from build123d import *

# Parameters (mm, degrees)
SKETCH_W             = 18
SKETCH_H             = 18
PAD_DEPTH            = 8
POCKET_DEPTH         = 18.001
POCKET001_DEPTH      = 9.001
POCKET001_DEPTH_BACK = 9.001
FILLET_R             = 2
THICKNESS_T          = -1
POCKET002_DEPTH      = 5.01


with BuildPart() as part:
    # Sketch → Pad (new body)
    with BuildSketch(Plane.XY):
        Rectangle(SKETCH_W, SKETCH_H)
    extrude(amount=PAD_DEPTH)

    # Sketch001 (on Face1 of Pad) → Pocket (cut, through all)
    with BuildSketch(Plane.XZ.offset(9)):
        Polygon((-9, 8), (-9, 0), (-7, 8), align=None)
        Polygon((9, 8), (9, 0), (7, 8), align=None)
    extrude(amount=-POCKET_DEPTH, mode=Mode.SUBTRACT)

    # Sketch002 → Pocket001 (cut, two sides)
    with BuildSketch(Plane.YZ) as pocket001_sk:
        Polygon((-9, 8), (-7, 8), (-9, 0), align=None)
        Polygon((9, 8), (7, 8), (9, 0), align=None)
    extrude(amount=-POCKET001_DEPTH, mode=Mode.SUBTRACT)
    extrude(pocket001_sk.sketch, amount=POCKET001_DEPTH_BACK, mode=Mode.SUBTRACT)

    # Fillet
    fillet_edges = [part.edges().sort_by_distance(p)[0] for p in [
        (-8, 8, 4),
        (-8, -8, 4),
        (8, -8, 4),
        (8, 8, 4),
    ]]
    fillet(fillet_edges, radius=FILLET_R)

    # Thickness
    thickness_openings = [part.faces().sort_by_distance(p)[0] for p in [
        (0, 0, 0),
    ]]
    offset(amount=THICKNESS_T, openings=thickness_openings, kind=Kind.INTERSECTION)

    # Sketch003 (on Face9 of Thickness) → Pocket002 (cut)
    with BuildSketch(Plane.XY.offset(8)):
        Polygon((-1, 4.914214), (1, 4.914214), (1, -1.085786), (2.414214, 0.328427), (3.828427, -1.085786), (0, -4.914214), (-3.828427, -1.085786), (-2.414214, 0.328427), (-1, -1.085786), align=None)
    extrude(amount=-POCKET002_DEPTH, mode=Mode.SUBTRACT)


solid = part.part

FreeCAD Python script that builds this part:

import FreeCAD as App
import Part
import Sketcher
from FreeCAD import Vector
Q = App.Units.Quantity


def edges_at(feature, points):
    """Names of the edges that pass closest to the given points."""
    edges = feature.Shape.Edges
    near = lambda p: min(range(len(edges)), key=lambda i: edges[i].distToShape(Part.Vertex(*p))[0])
    return sorted({f"Edge{near(p) + 1}" for p in points})


def faces_at(feature, points):
    """Names of the faces that lie closest to the given points."""
    faces = feature.Shape.Faces
    near = lambda p: min(range(len(faces)), key=lambda i: faces[i].distToShape(Part.Vertex(*p))[0])
    return sorted({f"Face{near(p) + 1}" for p in points})

doc = App.newDocument("Part")
body = doc.addObject("PartDesign::Body", "Body")

# Sketch on XY plane
sketch1 = body.newObject("Sketcher::SketchObject", "Sketch")
sketch1.AttachmentSupport = (doc.getObject("XY_Plane"), [""])
sketch1.MapMode = "FlatFace"
sketch1.addGeometry(Part.LineSegment(Vector(-9, 9, 0), Vector(-9, -9, 0)), False)
sketch1.addGeometry(Part.LineSegment(Vector(-9, -9, 0), Vector(9, -9, 0)), False)
sketch1.addGeometry(Part.LineSegment(Vector(9, -9, 0), Vector(9, 9, 0)), False)
sketch1.addGeometry(Part.LineSegment(Vector(9, 9, 0), Vector(-9, 9, 0)), False)
sketch1.addConstraint(Sketcher.Constraint("Coincident", 0, 2, 1, 1))
sketch1.addConstraint(Sketcher.Constraint("Coincident", 1, 2, 2, 1))
sketch1.addConstraint(Sketcher.Constraint("Coincident", 2, 2, 3, 1))
sketch1.addConstraint(Sketcher.Constraint("Coincident", 3, 2, 0, 1))
sketch1.addConstraint(Sketcher.Constraint("Vertical", 0))
sketch1.addConstraint(Sketcher.Constraint("Horizontal", 1))
sketch1.addConstraint(Sketcher.Constraint("Vertical", 2))
sketch1.addConstraint(Sketcher.Constraint("Horizontal", 3))
sketch1.addConstraint(Sketcher.Constraint("Symmetric", 0, 2, 2, 2, -1, 1))
sketch1.addConstraint(Sketcher.Constraint("Equal", 3, 0))
sketch1.addConstraint(Sketcher.Constraint("DistanceX", 1, 1, 1, 2, Q("18 mm")))
pad1 = body.newObject("PartDesign::Pad", "Pad")
pad1.Profile = sketch1
pad1.Length = 8

# Sketch on XZ plane
sketch2 = body.newObject("Sketcher::SketchObject", "Sketch001")
sketch2.AttachmentSupport = (doc.getObject("XZ_Plane"), [""])
sketch2.MapMode = "FlatFace"
sketch2.AttachmentOffset = App.Placement(Vector(0, 0, 9), App.Rotation())
sketch2.addGeometry(Part.LineSegment(Vector(-9, 8, 0), Vector(-9, 0, 0)), False)
sketch2.addGeometry(Part.LineSegment(Vector(-9, 0, 0), Vector(-7, 8, 0)), False)
sketch2.addGeometry(Part.LineSegment(Vector(-7, 8, 0), Vector(-9, 8, 0)), False)
sketch2.addGeometry(Part.LineSegment(Vector(9, 0, 0), Vector(9, 8, 0)), False)
sketch2.addGeometry(Part.LineSegment(Vector(9, 8, 0), Vector(7, 8, 0)), False)
sketch2.addGeometry(Part.LineSegment(Vector(7, 8, 0), Vector(9, 0, 0)), False)
sketch2.addConstraint(Sketcher.Constraint("Coincident", 0, 2, 1, 1))
sketch2.addConstraint(Sketcher.Constraint("Coincident", 1, 2, 2, 1))
sketch2.addConstraint(Sketcher.Constraint("Coincident", 2, 2, 0, 1))
sketch2.addConstraint(Sketcher.Constraint("Coincident", 3, 2, 4, 1))
sketch2.addConstraint(Sketcher.Constraint("Coincident", 4, 2, 5, 1))
sketch2.addConstraint(Sketcher.Constraint("Coincident", 5, 2, 3, 1))
sketch2.addConstraint(Sketcher.Constraint("Vertical", 0))
sketch2.addConstraint(Sketcher.Constraint("Horizontal", 2))
sketch2.addConstraint(Sketcher.Constraint("Vertical", 3))
sketch2.addConstraint(Sketcher.Constraint("Horizontal", 4))
sketch2.addConstraint(Sketcher.Constraint("Symmetric", 0, 2, 5, 2, -1, 1))
sketch2.addConstraint(Sketcher.Constraint("Symmetric", 1, 2, 4, 2, -2))
sketch2.addConstraint(Sketcher.Constraint("PointOnObject", 0, 2, -1))
sketch2.addConstraint(Sketcher.Constraint("DistanceX", 2, 2, 2, 1, Q("2 mm")))
sketch2.addConstraint(Sketcher.Constraint("DistanceY", 0, 2, 0, 1, Q("8 mm")))
sketch2.addConstraint(Sketcher.Constraint("DistanceX", 0, 2, -1, 1, Q("9 mm")))
pocket1 = body.newObject("PartDesign::Pocket", "Pocket")
pocket1.Profile = sketch2
pocket1.Type = "ThroughAll"

# Sketch on YZ plane
sketch3 = body.newObject("Sketcher::SketchObject", "Sketch002")
sketch3.AttachmentSupport = (doc.getObject("YZ_Plane"), [""])
sketch3.MapMode = "FlatFace"
sketch3.addGeometry(Part.LineSegment(Vector(-7, 8, 0), Vector(-9, 8, 0)), False)
sketch3.addGeometry(Part.LineSegment(Vector(-9, 8, 0), Vector(-9, 0, 0)), False)
sketch3.addGeometry(Part.LineSegment(Vector(-9, 0, 0), Vector(-7, 8, 0)), False)
sketch3.addGeometry(Part.LineSegment(Vector(9, 8, 0), Vector(7, 8, 0)), False)
sketch3.addGeometry(Part.LineSegment(Vector(7, 8, 0), Vector(9, 0, 0)), False)
sketch3.addGeometry(Part.LineSegment(Vector(9, 0, 0), Vector(9, 8, 0)), False)
sketch3.addConstraint(Sketcher.Constraint("Coincident", 0, 2, 1, 1))
sketch3.addConstraint(Sketcher.Constraint("Coincident", 1, 2, 2, 1))
sketch3.addConstraint(Sketcher.Constraint("Coincident", 2, 2, 0, 1))
sketch3.addConstraint(Sketcher.Constraint("Coincident", 3, 2, 4, 1))
sketch3.addConstraint(Sketcher.Constraint("Coincident", 4, 2, 5, 1))
sketch3.addConstraint(Sketcher.Constraint("Coincident", 5, 2, 3, 1))
sketch3.addConstraint(Sketcher.Constraint("Horizontal", 0))
sketch3.addConstraint(Sketcher.Constraint("Vertical", 1))
sketch3.addConstraint(Sketcher.Constraint("Horizontal", 3))
sketch3.addConstraint(Sketcher.Constraint("Vertical", 5))
sketch3.addConstraint(Sketcher.Constraint("Symmetric", 1, 2, 4, 2, -1, 1))
sketch3.addConstraint(Sketcher.Constraint("Symmetric", 2, 2, 3, 2, -2))
sketch3.addConstraint(Sketcher.Constraint("PointOnObject", 1, 2, -1))
sketch3.addConstraint(Sketcher.Constraint("DistanceX", 0, 2, 0, 1, Q("2 mm")))
sketch3.addConstraint(Sketcher.Constraint("DistanceY", 1, 2, 1, 1, Q("8 mm")))
sketch3.addConstraint(Sketcher.Constraint("DistanceX", 0, 2, -1, 1, Q("9 mm")))
pocket2 = body.newObject("PartDesign::Pocket", "Pocket001")
pocket2.Profile = sketch3
pocket2.Type = "ThroughAll"
pocket2.Midplane = True
doc.recompute()

fillet = body.newObject("PartDesign::Fillet", "Fillet")
fillet.Base = (pocket2, edges_at(pocket2, [
    (-8, 8, 4),
    (-8, -8, 4),
    (8, -8, 4),
    (8, 8, 4),
]))
fillet.Radius = 2
doc.recompute()

thickness = body.newObject("PartDesign::Thickness", "Thickness")
thickness.Base = (fillet, faces_at(fillet, [(0, 0, 0)]))
thickness.Value = 1
thickness.Reversed = True
thickness.Join = "Intersection"

# Sketch on XY plane
sketch4 = body.newObject("Sketcher::SketchObject", "Sketch003")
sketch4.AttachmentSupport = (doc.getObject("XY_Plane"), [""])
sketch4.MapMode = "FlatFace"
sketch4.AttachmentOffset = App.Placement(Vector(0, 0, 8), App.Rotation())
sketch4.addGeometry(Part.LineSegment(Vector(1, 4.9, 0), Vector(-1, 4.9, 0)), False)
sketch4.addGeometry(Part.LineSegment(Vector(-1, 4.9, 0), Vector(-1, -1.1, 0)), False)
sketch4.addGeometry(Part.LineSegment(Vector(-1, -1.1, 0), Vector(-2.4, 0.3, 0)), False)
sketch4.addGeometry(Part.LineSegment(Vector(-2.4, 0.3, 0), Vector(-3.8, -1.1, 0)), False)
sketch4.addGeometry(Part.LineSegment(Vector(-3.8, -1.1, 0), Vector(0, -4.9, 0)), False)
sketch4.addGeometry(Part.LineSegment(Vector(0, -4.9, 0), Vector(3.8, -1.1, 0)), False)
sketch4.addGeometry(Part.LineSegment(Vector(3.8, -1.1, 0), Vector(2.4, 0.3, 0)), False)
sketch4.addGeometry(Part.LineSegment(Vector(2.4, 0.3, 0), Vector(1, -1.1, 0)), False)
sketch4.addGeometry(Part.LineSegment(Vector(1, -1.1, 0), Vector(1, 4.9, 0)), False)
sketch4.addConstraint(Sketcher.Constraint("Coincident", 0, 2, 1, 1))
sketch4.addConstraint(Sketcher.Constraint("Coincident", 1, 2, 2, 1))
sketch4.addConstraint(Sketcher.Constraint("Coincident", 2, 2, 3, 1))
sketch4.addConstraint(Sketcher.Constraint("Coincident", 3, 2, 4, 1))
sketch4.addConstraint(Sketcher.Constraint("Coincident", 4, 2, 5, 1))
sketch4.addConstraint(Sketcher.Constraint("Coincident", 5, 2, 6, 1))
sketch4.addConstraint(Sketcher.Constraint("Coincident", 6, 2, 7, 1))
sketch4.addConstraint(Sketcher.Constraint("Coincident", 7, 2, 8, 1))
sketch4.addConstraint(Sketcher.Constraint("Coincident", 8, 2, 0, 1))
sketch4.addConstraint(Sketcher.Constraint("Horizontal", 0))
sketch4.addConstraint(Sketcher.Constraint("Vertical", 1))
sketch4.addConstraint(Sketcher.Constraint("Vertical", 8))
sketch4.addConstraint(Sketcher.Constraint("Symmetric", 3, 2, 5, 2, -2))
sketch4.addConstraint(Sketcher.Constraint("Symmetric", 2, 2, 6, 2, -2))
sketch4.addConstraint(Sketcher.Constraint("Symmetric", 1, 2, 7, 2, -2))
sketch4.addConstraint(Sketcher.Constraint("PointOnObject", 4, 2, -2))
sketch4.addConstraint(Sketcher.Constraint("Perpendicular", 2, 3))
sketch4.addConstraint(Sketcher.Constraint("Perpendicular", 3, 4))
sketch4.addConstraint(Sketcher.Constraint("Perpendicular", 4, 5))
sketch4.addConstraint(Sketcher.Constraint("Horizontal", 1, 2, 3, 2))
sketch4.addConstraint(Sketcher.Constraint("DistanceX", 0, 2, 0, 1, Q("2 mm")))
sketch4.addConstraint(Sketcher.Constraint("DistanceY", 1, 2, 1, 1, Q("6 mm")))
sketch4.addConstraint(Sketcher.Constraint("Distance", 2, Q("2 mm")))
sketch4.addConstraint(Sketcher.Constraint("DistanceY", -1, 1, 0, 2, Q("4.914214 mm")))
pocket3 = body.newObject("PartDesign::Pocket", "Pocket002")
pocket3.Profile = sketch4
pocket3.Length = 5.01

doc.recompute()
